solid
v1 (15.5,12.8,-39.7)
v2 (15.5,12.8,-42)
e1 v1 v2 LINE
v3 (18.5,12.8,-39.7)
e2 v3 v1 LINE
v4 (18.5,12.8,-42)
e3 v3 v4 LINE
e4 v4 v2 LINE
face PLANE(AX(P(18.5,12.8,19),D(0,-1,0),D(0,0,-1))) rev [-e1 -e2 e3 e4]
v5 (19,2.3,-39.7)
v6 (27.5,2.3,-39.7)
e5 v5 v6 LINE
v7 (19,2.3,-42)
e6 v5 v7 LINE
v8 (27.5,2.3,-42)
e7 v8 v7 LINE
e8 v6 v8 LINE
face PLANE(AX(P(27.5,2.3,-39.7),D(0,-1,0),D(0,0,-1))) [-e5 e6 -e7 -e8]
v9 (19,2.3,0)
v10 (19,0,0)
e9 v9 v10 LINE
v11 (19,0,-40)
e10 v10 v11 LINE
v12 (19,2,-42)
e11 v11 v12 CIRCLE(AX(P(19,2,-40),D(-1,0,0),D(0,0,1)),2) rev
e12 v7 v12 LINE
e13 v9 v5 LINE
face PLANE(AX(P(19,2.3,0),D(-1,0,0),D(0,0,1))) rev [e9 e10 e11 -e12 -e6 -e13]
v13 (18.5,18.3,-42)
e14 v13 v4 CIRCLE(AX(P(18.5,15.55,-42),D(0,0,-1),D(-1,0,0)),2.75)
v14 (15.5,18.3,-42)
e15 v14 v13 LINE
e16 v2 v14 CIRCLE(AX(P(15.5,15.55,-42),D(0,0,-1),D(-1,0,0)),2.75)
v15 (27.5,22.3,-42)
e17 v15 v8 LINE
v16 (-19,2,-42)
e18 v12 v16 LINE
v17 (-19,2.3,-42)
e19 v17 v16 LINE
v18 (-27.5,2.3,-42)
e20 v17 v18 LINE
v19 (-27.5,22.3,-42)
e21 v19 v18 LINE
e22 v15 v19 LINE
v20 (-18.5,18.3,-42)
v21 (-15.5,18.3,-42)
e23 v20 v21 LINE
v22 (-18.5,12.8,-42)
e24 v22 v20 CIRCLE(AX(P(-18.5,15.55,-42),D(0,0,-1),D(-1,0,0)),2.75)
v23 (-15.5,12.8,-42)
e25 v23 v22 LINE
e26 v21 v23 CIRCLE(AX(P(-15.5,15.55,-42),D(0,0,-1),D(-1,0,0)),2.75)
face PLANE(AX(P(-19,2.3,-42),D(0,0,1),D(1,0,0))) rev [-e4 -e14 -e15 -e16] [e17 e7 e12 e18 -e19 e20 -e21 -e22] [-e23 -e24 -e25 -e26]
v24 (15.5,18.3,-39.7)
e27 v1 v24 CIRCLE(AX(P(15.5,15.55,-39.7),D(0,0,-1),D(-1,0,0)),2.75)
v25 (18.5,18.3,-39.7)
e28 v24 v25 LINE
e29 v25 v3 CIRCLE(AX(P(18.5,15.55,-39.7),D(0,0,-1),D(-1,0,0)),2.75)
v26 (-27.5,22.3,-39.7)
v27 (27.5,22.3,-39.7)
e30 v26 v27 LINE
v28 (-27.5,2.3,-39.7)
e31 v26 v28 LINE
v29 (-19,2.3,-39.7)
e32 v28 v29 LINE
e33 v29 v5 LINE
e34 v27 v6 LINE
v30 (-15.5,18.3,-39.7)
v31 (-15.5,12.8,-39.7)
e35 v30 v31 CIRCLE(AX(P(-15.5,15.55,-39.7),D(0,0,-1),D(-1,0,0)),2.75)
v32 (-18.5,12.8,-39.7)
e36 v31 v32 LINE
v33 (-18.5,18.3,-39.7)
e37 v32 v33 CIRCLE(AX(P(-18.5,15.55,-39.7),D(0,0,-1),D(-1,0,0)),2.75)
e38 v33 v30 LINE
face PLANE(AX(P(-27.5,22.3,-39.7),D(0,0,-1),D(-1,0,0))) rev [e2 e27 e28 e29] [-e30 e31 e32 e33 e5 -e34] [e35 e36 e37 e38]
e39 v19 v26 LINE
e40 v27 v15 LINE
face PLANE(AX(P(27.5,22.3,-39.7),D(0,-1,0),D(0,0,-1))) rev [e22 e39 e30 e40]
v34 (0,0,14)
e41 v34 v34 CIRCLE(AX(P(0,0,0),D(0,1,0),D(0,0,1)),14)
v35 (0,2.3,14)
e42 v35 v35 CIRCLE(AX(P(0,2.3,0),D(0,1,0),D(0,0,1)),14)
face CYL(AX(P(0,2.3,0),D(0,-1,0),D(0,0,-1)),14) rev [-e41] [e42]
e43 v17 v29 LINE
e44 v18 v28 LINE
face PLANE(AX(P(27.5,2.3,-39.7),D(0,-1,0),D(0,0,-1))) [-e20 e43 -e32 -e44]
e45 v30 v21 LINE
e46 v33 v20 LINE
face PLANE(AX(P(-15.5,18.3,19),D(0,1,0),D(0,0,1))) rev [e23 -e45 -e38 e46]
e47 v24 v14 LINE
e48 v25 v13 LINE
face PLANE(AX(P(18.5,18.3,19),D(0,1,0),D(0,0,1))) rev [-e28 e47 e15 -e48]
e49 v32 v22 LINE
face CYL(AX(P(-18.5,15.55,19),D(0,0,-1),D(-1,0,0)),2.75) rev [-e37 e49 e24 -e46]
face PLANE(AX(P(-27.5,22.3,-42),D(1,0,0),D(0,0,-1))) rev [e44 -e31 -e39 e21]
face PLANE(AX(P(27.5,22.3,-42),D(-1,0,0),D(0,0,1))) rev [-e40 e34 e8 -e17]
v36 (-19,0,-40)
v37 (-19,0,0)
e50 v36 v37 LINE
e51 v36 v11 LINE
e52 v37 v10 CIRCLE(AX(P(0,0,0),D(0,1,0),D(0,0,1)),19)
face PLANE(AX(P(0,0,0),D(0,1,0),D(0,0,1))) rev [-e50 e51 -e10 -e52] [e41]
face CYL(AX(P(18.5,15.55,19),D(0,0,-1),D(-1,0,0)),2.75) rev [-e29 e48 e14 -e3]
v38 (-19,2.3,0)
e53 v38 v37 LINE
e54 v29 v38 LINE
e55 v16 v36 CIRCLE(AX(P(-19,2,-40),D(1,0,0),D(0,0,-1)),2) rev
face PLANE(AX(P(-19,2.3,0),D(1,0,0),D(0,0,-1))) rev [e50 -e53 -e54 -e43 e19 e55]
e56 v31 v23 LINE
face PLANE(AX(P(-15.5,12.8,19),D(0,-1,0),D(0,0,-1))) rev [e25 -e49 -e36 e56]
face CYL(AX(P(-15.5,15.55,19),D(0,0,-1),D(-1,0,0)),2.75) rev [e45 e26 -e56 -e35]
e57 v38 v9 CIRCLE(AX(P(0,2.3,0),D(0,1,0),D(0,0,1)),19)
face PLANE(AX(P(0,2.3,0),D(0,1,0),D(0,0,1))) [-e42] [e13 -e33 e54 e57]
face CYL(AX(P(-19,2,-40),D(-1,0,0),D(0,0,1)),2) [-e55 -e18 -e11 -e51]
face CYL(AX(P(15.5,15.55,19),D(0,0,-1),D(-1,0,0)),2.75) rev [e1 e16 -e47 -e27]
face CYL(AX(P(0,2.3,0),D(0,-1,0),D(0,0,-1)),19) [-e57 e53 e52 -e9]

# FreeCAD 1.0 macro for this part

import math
import FreeCAD as App
import Part
import Sketcher

V = App.Vector
Q = App.Units.Quantity


def edges_at(feature, points):
    """Names of the edges that pass closest to the given points."""
    edges = feature.Shape.Edges
    near = lambda p: min(range(len(edges)), key=lambda i: edges[i].distToShape(Part.Vertex(*p))[0])
    return sorted({f"Edge{near(p) + 1}" for p in points})


def add_polygon(sketch, points):
    """Adds a closed chain of lines whose ends are joined by coincident constraints."""
    first, n = sketch.GeometryCount, len(points)
    for a, b in zip(points, points[1:] + points[:1]):
        sketch.addGeometry(Part.LineSegment(App.Vector(*a, 0), App.Vector(*b, 0)), False)
    for i in range(n):
        sketch.addConstraint(Sketcher.Constraint("Coincident", first + i, 2, first + (i + 1) % n, 1))

doc = App.newDocument("Part")
body = doc.addObject("PartDesign::Body", "Body")

sketch1 = body.newObject("Sketcher::SketchObject", "Sketch")
sketch1.AttachmentSupport = (doc.getObject("XZ_Plane"), [""])
sketch1.MapMode = "FlatFace"
sketch1.addGeometry(Part.LineSegment(V(-19, -42, 0), V(-19, 0, 0)), False)
sketch1.addGeometry(Part.ArcOfCircle(Part.Circle(V(0, 0, 0), V(0, 0, 1), 19), math.radians(0), math.radians(180)), False)
sketch1.addGeometry(Part.LineSegment(V(19, 0, 0), V(19, -42, 0)), False)
sketch1.addGeometry(Part.LineSegment(V(19, -42, 0), V(-19, -42, 0)), False)
sketch1.addGeometry(Part.Circle(V(0, 0, 0), V(0, 0, 1), 14), False)
sketch1.addConstraint(Sketcher.Constraint("Tangent", 0, 2, 1, 2))
sketch1.addConstraint(Sketcher.Constraint("Tangent", 1, 1, 2, 1))
sketch1.addConstraint(Sketcher.Constraint("Coincident", 2, 2, 3, 1))
sketch1.addConstraint(Sketcher.Constraint("Coincident", 3, 2, 0, 1))
sketch1.addConstraint(Sketcher.Constraint("Vertical", 0))
sketch1.addConstraint(Sketcher.Constraint("Vertical", 2))
sketch1.addConstraint(Sketcher.Constraint("Horizontal", 3))
sketch1.addConstraint(Sketcher.Constraint("Coincident", 1, 3, -1, 1))
sketch1.addConstraint(Sketcher.Constraint("Coincident", 4, 3, -1, 1))
sketch1.addConstraint(Sketcher.Constraint("Diameter", 4, Q("28 mm")))
sketch1.addConstraint(Sketcher.Constraint("Radius", 1, Q("19 mm")))
sketch1.addConstraint(Sketcher.Constraint("DistanceY", 0, 1, 0, 2, Q("42 mm")))
pad1 = body.newObject("PartDesign::Pad", "Pad")
pad1.Profile = sketch1
pad1.Length = 2.3
pad1.Reversed = True

sketch2 = body.newObject("Sketcher::SketchObject", "Sketch001")
sketch2.AttachmentSupport = (doc.getObject("XZ_Plane"), [""])
sketch2.MapMode = "FlatFace"
sketch2.AttachmentOffset = App.Placement(V(0, 0, -2.3), App.Rotation())
add_polygon(sketch2, [(27.5, -42), (-27.5, -42), (-27.5, -39.7), (27.5, -39.7)])
sketch2.addConstraint(Sketcher.Constraint("Horizontal", 0))
sketch2.addConstraint(Sketcher.Constraint("Vertical", 1))
sketch2.addConstraint(Sketcher.Constraint("Horizontal", 2))
sketch2.addConstraint(Sketcher.Constraint("Vertical", 3))
sketch2.addConstraint(Sketcher.Constraint("DistanceX", 0, 2, 0, 1, Q("55 mm")))
sketch2.addConstraint(Sketcher.Constraint("DistanceY", 1, 1, 1, 2, Q("2.3 mm")))
sketch2.addConstraint(Sketcher.Constraint("DistanceY", 0, 2, -1, 1, Q("42 mm")))
sketch2.addConstraint(Sketcher.Constraint("DistanceX", 0, 2, -1, 1, Q("27.5 mm")))
pad2 = body.newObject("PartDesign::Pad", "Pad001")
pad2.Profile = sketch2
pad2.Length = 20
pad2.Reversed = True
doc.recompute()

fillet = body.newObject("PartDesign::Fillet", "Fillet")
fillet.Base = (pad2, edges_at(pad2, [(0, 0, -42)]))
fillet.Radius = 2

sketch3 = body.newObject("Sketcher::SketchObject", "Sketch002")
sketch3.AttachmentSupport = (doc.getObject("XY_Plane"), [""])
sketch3.MapMode = "FlatFace"
sketch3.AttachmentOffset = App.Placement(V(0, 0, -42), App.Rotation())
sketch3.addGeometry(Part.LineSegment(V(15.5, 18.3, 0), V(18.5, 18.3, 0)), False)
sketch3.addGeometry(Part.ArcOfCircle(Part.Circle(V(18.5, 15.6, 0), V(0, 0, 1), 2.8), math.radians(-90), math.radians(90)), False)
sketch3.addGeometry(Part.LineSegment(V(18.5, 12.8, 0), V(15.5, 12.8, 0)), False)
sketch3.addGeometry(Part.ArcOfCircle(Part.Circle(V(15.5, 15.6, 0), V(0, 0, 1), 2.8), math.radians(90), math.radians(270)), False)
sketch3.addGeometry(Part.LineSegment(V(-18.5, 18.3, 0), V(-15.5, 18.3, 0)), False)
sketch3.addGeometry(Part.ArcOfCircle(Part.Circle(V(-15.5, 15.6, 0), V(0, 0, 1), 2.8), math.radians(-90), math.radians(90)), False)
sketch3.addGeometry(Part.LineSegment(V(-15.5, 12.8, 0), V(-18.5, 12.8, 0)), False)
sketch3.addGeometry(Part.ArcOfCircle(Part.Circle(V(-18.5, 15.6, 0), V(0, 0, 1), 2.8), math.radians(90), math.radians(270)), False)
sketch3.addConstraint(Sketcher.Constraint("Tangent", 0, 2, 1, 2))
sketch3.addConstraint(Sketcher.Constraint("Tangent", 1, 1, 2, 1))
sketch3.addConstraint(Sketcher.Constraint("Tangent", 2, 2, 3, 2))
sketch3.addConstraint(Sketcher.Constraint("Tangent", 3, 1, 0, 1))
sketch3.addConstraint(Sketcher.Constraint("Tangent", 4, 2, 5, 2))
sketch3.addConstraint(Sketcher.Constraint("Tangent", 5, 1, 6, 1))
sketch3.addConstraint(Sketcher.Constraint("Tangent", 6, 2, 7, 2))
sketch3.addConstraint(Sketcher.Constraint("Tangent", 7, 1, 4, 1))
sketch3.addConstraint(Sketcher.Constraint("Horizontal", 0))
sketch3.addConstraint(Sketcher.Constraint("Horizontal", 2))
sketch3.addConstraint(Sketcher.Constraint("Horizontal", 4))
sketch3.addConstraint(Sketcher.Constraint("Horizontal", 6))
sketch3.addConstraint(Sketcher.Constraint("Equal", 3, 5))
sketch3.addConstraint(Sketcher.Constraint("Symmetric", 3, 3, 5, 3, -2))
sketch3.addConstraint(Sketcher.Constraint("Equal", 2, 4))
sketch3.addConstraint(Sketcher.Constraint("DistanceX", 0, 1, 0, 2, Q("3 mm")))
sketch3.addConstraint(Sketcher.Constraint("Radius", 1, Q("2.75 mm")))
sketch3.addConstraint(Sketcher.Constraint("DistanceX", 5, 3, 3, 3, Q("31 mm")))
sketch3.addConstraint(Sketcher.Constraint("DistanceY", -1, 1, 0, 2, Q("18.3 mm")))
pocket1 = body.newObject("PartDesign::Pocket", "Pocket")
pocket1.Profile = sketch3
pocket1.Type = "ThroughAll"
pocket1.Reversed = True

doc.recompute()
